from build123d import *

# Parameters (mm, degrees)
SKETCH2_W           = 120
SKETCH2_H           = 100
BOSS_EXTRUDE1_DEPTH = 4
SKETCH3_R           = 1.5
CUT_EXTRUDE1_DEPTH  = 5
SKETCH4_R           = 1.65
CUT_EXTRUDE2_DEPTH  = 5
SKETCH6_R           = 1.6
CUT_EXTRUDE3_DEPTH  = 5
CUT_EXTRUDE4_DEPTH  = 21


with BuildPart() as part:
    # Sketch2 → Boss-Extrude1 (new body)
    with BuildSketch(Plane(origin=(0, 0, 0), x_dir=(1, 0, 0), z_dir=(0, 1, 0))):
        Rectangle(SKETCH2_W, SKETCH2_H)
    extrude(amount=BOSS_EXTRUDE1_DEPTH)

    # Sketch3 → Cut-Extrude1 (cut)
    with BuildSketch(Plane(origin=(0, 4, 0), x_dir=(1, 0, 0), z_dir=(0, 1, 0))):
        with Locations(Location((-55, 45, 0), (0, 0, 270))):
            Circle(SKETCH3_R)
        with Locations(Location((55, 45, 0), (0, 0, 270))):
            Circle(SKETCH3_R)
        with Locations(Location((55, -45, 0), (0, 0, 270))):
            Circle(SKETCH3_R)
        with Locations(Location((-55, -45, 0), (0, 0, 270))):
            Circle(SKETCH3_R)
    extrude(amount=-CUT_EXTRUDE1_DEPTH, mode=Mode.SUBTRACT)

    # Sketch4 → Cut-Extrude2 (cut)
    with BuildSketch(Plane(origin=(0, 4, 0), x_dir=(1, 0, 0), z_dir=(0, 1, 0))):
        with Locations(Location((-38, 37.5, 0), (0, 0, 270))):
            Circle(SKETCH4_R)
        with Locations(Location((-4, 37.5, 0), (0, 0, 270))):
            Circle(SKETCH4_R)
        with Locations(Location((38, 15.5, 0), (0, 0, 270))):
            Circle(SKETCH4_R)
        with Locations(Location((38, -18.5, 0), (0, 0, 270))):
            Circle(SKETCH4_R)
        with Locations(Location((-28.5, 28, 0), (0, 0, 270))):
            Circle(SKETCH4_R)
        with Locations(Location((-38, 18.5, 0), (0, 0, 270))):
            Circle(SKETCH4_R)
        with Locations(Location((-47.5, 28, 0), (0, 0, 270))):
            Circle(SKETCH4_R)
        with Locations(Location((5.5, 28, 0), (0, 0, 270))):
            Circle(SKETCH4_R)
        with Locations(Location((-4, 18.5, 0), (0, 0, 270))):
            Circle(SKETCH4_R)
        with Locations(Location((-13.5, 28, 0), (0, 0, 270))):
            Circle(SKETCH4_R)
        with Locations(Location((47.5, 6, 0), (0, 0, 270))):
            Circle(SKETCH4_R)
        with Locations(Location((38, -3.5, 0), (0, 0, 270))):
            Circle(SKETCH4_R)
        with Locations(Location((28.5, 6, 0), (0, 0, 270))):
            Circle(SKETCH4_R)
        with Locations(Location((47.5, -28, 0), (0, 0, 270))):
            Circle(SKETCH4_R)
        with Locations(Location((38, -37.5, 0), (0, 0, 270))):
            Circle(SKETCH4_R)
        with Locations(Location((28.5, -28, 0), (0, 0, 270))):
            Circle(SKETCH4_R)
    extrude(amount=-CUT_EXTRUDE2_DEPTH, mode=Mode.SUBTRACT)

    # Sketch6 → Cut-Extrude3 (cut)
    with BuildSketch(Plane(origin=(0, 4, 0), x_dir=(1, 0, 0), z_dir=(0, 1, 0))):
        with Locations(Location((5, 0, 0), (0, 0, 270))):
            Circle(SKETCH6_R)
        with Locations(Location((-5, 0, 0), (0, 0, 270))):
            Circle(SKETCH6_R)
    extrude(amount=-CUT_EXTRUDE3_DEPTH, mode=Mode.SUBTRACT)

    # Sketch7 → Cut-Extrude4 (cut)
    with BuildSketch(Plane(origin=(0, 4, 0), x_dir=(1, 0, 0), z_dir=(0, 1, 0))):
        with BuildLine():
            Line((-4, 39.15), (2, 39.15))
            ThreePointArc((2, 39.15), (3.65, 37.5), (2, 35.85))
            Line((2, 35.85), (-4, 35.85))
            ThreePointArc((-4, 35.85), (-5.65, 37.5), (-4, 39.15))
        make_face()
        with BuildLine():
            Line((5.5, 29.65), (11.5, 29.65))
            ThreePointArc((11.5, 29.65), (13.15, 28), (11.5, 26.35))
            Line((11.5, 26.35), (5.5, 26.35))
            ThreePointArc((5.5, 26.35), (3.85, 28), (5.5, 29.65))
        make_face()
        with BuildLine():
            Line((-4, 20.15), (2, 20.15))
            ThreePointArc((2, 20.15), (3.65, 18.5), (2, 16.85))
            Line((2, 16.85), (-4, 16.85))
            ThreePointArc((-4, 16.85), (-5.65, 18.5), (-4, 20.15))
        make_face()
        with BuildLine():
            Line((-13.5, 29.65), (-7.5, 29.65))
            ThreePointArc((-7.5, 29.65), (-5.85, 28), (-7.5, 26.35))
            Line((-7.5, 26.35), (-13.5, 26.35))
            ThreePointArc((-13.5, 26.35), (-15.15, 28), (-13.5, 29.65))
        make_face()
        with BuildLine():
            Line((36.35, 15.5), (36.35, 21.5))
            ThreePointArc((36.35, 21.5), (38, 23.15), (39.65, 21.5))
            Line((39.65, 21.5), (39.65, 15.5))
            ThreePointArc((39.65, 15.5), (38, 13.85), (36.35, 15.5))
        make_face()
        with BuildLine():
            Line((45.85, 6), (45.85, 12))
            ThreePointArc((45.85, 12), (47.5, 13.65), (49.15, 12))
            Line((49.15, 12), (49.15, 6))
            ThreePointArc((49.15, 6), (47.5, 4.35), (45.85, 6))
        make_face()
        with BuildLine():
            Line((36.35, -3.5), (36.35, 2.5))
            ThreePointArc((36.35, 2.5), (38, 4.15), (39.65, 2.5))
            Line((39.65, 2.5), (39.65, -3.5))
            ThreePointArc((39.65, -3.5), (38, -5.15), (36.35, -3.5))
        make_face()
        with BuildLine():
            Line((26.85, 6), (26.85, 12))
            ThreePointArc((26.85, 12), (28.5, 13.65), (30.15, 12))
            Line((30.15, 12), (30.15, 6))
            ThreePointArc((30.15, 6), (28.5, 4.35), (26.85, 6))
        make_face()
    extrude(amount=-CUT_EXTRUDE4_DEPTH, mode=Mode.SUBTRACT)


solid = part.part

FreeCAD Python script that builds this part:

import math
import FreeCAD as App
import Part
import Sketcher
Q = App.Units.Quantity

doc = App.newDocument("Part")
params = doc.addObject("Spreadsheet::Sheet", "Params")
for row, (alias, value) in enumerate([
    ("sketch1_width", "120 mm"),
    ("sketch1_height", "100 mm"),
    ("pad1_length", "4 mm"),
    ("sketch2_diameter", "3 mm"),
    ("pocket1_length", "5 mm"),
    ("sketch3_diameter", "3.3 mm"),
    ("pocket2_length", "5 mm"),
    ("sketch4_diameter", "3.2 mm"),
    ("pocket3_length", "5 mm"),
    ("sketch5_width", "6 mm"),
    ("sketch5_radius", "1.65 mm"),
    ("pocket4_length", "21 mm"),
], start=1):
    params.set(f"A{row}", alias)
    params.set(f"B{row}", "=" + value)
    params.setAlias(f"B{row}", alias)

body = doc.addObject("PartDesign::Body", "Body")

# Sketch on XZ plane
sketch1 = doc.addObject("Sketcher::SketchObject", "Sketch")
body.addObject(sketch1)
sketch1.AttachmentSupport = (doc.XZ_Plane, [""])
sketch1.MapMode = "FlatFace"
sketch1.addGeometry(Part.LineSegment(App.Vector(-60, -50, 0), App.Vector(-60, 50, 0)), False)
sketch1.addGeometry(Part.LineSegment(App.Vector(-60, 50, 0), App.Vector(60, 50, 0)), False)
sketch1.addGeometry(Part.LineSegment(App.Vector(60, 50, 0), App.Vector(60, -50, 0)), False)
sketch1.addGeometry(Part.LineSegment(App.Vector(60, -50, 0), App.Vector(-60, -50, 0)), False)
sketch1.addConstraint(Sketcher.Constraint("Coincident", 0, 2, 1, 1))
sketch1.addConstraint(Sketcher.Constraint("Coincident", 1, 2, 2, 1))
sketch1.addConstraint(Sketcher.Constraint("Coincident", 2, 2, 3, 1))
sketch1.addConstraint(Sketcher.Constraint("Coincident", 3, 2, 0, 1))
sketch1.addConstraint(Sketcher.Constraint("Vertical", 0))
sketch1.addConstraint(Sketcher.Constraint("Horizontal", 1))
sketch1.addConstraint(Sketcher.Constraint("Vertical", 2))
sketch1.addConstraint(Sketcher.Constraint("Horizontal", 3))
sketch1.addConstraint(Sketcher.Constraint("Symmetric", 0, 2, 2, 2, -1, 1))
sketch1.addConstraint(Sketcher.Constraint("DistanceX", 1, 1, 1, 2, Q("120 mm")))
sketch1.addConstraint(Sketcher.Constraint("DistanceY", 0, 1, 0, 2, Q("100 mm")))
sketch1.setExpression("Constraints[9]", "Params.sketch1_width")
sketch1.setExpression("Constraints[10]", "Params.sketch1_height")
pad1 = doc.addObject("PartDesign::Pad", "Pad")
body.addObject(pad1)
pad1.Profile = sketch1
pad1.setExpression("Length", "Params.pad1_length")
pad1.Reversed = True

# Sketch on XZ plane
sketch2 = doc.addObject("Sketcher::SketchObject", "Sketch001")
body.addObject(sketch2)
sketch2.AttachmentSupport = (doc.XZ_Plane, [""])
sketch2.MapMode = "FlatFace"
sketch2.AttachmentOffset = App.Placement(App.Vector(0, 0, -4), App.Rotation())
sketch2.addGeometry(Part.Circle(App.Vector(-55, -45, 0), App.Vector(0, 0, 1), 1.5), False)
sketch2.addGeometry(Part.Circle(App.Vector(55, -45, 0), App.Vector(0, 0, 1), 1.5), False)
sketch2.addGeometry(Part.Circle(App.Vector(55, 45, 0), App.Vector(0, 0, 1), 1.5), False)
sketch2.addGeometry(Part.Circle(App.Vector(-55, 45, 0), App.Vector(0, 0, 1), 1.5), False)
sketch2.addConstraint(Sketcher.Constraint("Equal", 0, 1))
sketch2.addConstraint(Sketcher.Constraint("Equal", 1, 2))
sketch2.addConstraint(Sketcher.Constraint("Equal", 2, 3))
sketch2.addConstraint(Sketcher.Constraint("Symmetric", 0, 3, 2, 3, -1, 1))
sketch2.addConstraint(Sketcher.Constraint("Symmetric", 1, 3, 3, 3, -1, 1))
sketch2.addConstraint(Sketcher.Constraint("Symmetric", 0, 3, 1, 3, -2))
sketch2.addConstraint(Sketcher.Constraint("Diameter", 0, Q("3 mm")))
sketch2.addConstraint(Sketcher.Constraint("DistanceX", 0, 3, -1, 1, Q("55 mm")))
sketch2.addConstraint(Sketcher.Constraint("DistanceY", 0, 3, -1, 1, Q("45 mm")))
sketch2.setExpression("Constraints[6]", "Params.sketch2_diameter")
pocket1 = doc.addObject("PartDesign::Pocket", "Pocket")
body.addObject(pocket1)
pocket1.Profile = sketch2
pocket1.setExpression("Length", "Params.pocket1_length")
pocket1.Reversed = True

# Sketch on XZ plane
sketch3 = doc.addObject("Sketcher::SketchObject", "Sketch002")
body.addObject(sketch3)
sketch3.AttachmentSupport = (doc.XZ_Plane, [""])
sketch3.MapMode = "FlatFace"
sketch3.AttachmentOffset = App.Placement(App.Vector(0, 0, -4), App.Rotation())
sketch3.addGeometry(Part.Circle(App.Vector(-38, -37.5, 0), App.Vector(0, 0, 1), 1.65), False)
sketch3.addGeometry(Part.Circle(App.Vector(-4, -37.5, 0), App.Vector(0, 0, 1), 1.65), False)
sketch3.addGeometry(Part.Circle(App.Vector(38, -15.5, 0), App.Vector(0, 0, 1), 1.65), False)
sketch3.addGeometry(Part.Circle(App.Vector(38, 18.5, 0), App.Vector(0, 0, 1), 1.65), False)
sketch3.addGeometry(Part.Circle(App.Vector(-28.5, -28, 0), App.Vector(0, 0, 1), 1.65), False)
sketch3.addGeometry(Part.Circle(App.Vector(-38, -18.5, 0), App.Vector(0, 0, 1), 1.65), False)
sketch3.addGeometry(Part.Circle(App.Vector(-47.5, -28, 0), App.Vector(0, 0, 1), 1.65), False)
sketch3.addGeometry(Part.Circle(App.Vector(5.5, -28, 0), App.Vector(0, 0, 1), 1.65), False)
sketch3.addGeometry(Part.Circle(App.Vector(-4, -18.5, 0), App.Vector(0, 0, 1), 1.65), False)
sketch3.addGeometry(Part.Circle(App.Vector(-13.5, -28, 0), App.Vector(0, 0, 1), 1.65), False)
sketch3.addGeometry(Part.Circle(App.Vector(47.5, -6, 0), App.Vector(0, 0, 1), 1.65), False)
sketch3.addGeometry(Part.Circle(App.Vector(38, 3.5, 0), App.Vector(0, 0, 1), 1.65), False)
sketch3.addGeometry(Part.Circle(App.Vector(28.5, -6, 0), App.Vector(0, 0, 1), 1.65), False)
sketch3.addGeometry(Part.Circle(App.Vector(47.5, 28, 0), App.Vector(0, 0, 1), 1.65), False)
sketch3.addGeometry(Part.Circle(App.Vector(38, 37.5, 0), App.Vector(0, 0, 1), 1.65), False)
sketch3.addGeometry(Part.Circle(App.Vector(28.5, 28, 0), App.Vector(0, 0, 1), 1.65), False)
sketch3.addConstraint(Sketcher.Constraint("Equal", 0, 1))
sketch3.addConstraint(Sketcher.Constraint("Equal", 1, 2))
sketch3.addConstraint(Sketcher.Constraint("Equal", 2, 3))
sketch3.addConstraint(Sketcher.Constraint("Equal", 3, 4))
sketch3.addConstraint(Sketcher.Constraint("Equal", 4, 5))
sketch3.addConstraint(Sketcher.Constraint("Equal", 5, 6))
sketch3.addConstraint(Sketcher.Constraint("Equal", 6, 7))
sketch3.addConstraint(Sketcher.Constraint("Equal", 7, 8))
sketch3.addConstraint(Sketcher.Constraint("Equal", 8, 9))
sketch3.addConstraint(Sketcher.Constraint("Equal", 9, 10))
sketch3.addConstraint(Sketcher.Constraint("Equal", 10, 11))
sketch3.addConstraint(Sketcher.Constraint("Equal", 11, 12))
sketch3.addConstraint(Sketcher.Constraint("Equal", 12, 13))
sketch3.addConstraint(Sketcher.Constraint("Equal", 13, 14))
sketch3.addConstraint(Sketcher.Constraint("Equal", 14, 15))
sketch3.addConstraint(Sketcher.Constraint("Symmetric", 3, 3, 5, 3, -1, 1))
sketch3.addConstraint(Sketcher.Constraint("Symmetric", 6, 3, 13, 3, -1, 1))
sketch3.addConstraint(Sketcher.Constraint("Symmetric", 0, 3, 14, 3, -1, 1))
sketch3.addConstraint(Sketcher.Constraint("Symmetric", 4, 3, 15, 3, -1, 1))
sketch3.addConstraint(Sketcher.Constraint("Horizontal", 0, 3, 1, 3))
sketch3.addConstraint(Sketcher.Constraint("Horizontal", 4, 3, 6, 3))
sketch3.addConstraint(Sketcher.Constraint("Horizontal", 6, 3, 7, 3))
sketch3.addConstraint(Sketcher.Constraint("Horizontal", 5, 3, 8, 3))
sketch3.addConstraint(Sketcher.Constraint("Horizontal", 7, 3, 9, 3))
sketch3.addConstraint(Sketcher.Constraint("Horizontal", 10, 3, 12, 3))
sketch3.addConstraint(Sketcher.Constraint("Vertical", 2, 3, 3, 3))
sketch3.addConstraint(Sketcher.Constraint("Vertical", 0, 3, 5, 3))
sketch3.addConstraint(Sketcher.Constraint("Vertical", 1, 3, 8, 3))
sketch3.addConstraint(Sketcher.Constraint("Vertical", 3, 3, 11, 3))
sketch3.addConstraint(Sketcher.Constraint("Vertical", 10, 3, 13, 3))
sketch3.addConstraint(Sketcher.Constraint("Vertical", 12, 3, 15, 3))
sketch3.addConstraint(Sketcher.Constraint("Diameter", 0, Q("3.3 mm")))
sketch3.addConstraint(Sketcher.Constraint("DistanceX", 0, 3, -1, 1, Q("38 mm")))
sketch3.addConstraint(Sketcher.Constraint("DistanceX", 1, 3, -1, 1, Q("4 mm")))
sketch3.addConstraint(Sketcher.Constraint("DistanceY", 4, 3, -1, 1, Q("28 mm")))
sketch3.addConstraint(Sketcher.Constraint("DistanceY", 10, 3, -1, 1, Q("6 mm")))
sketch3.addConstraint(Sketcher.Constraint("DistanceY", 1, 3, 2, 3, Q("22 mm")))
sketch3.addConstraint(Sketcher.Constraint("DistanceY", 2, 3, 3, 3, Q("34 mm")))
sketch3.addConstraint(Sketcher.Constraint("DistanceY", 0, 3, 5, 3, Q("19 mm")))
sketch3.addConstraint(Sketcher.Constraint("DistanceX", 6, 3, 4, 3, Q("19 mm")))
sketch3.addConstraint(Sketcher.Constraint("DistanceX", 4, 3, 7, 3, Q("34 mm")))
sketch3.addConstraint(Sketcher.Constraint("DistanceX", 4, 3, 9, 3, Q("15 mm")))
sketch3.addConstraint(Sketcher.Constraint("DistanceX", 7, 3, 10, 3, Q("42 mm")))
sketch3.addConstraint(Sketcher.Constraint("DistanceY", 11, 3, 3, 3, Q("15 mm")))
sketch3.setExpression("Constraints[31]", "Params.sketch3_diameter")
pocket2 = doc.addObject("PartDesign::Pocket", "Pocket001")
body.addObject(pocket2)
pocket2.Profile = sketch3
pocket2.setExpression("Length", "Params.pocket2_length")
pocket2.Reversed = True

# Sketch on XZ plane
sketch4 = doc.addObject("Sketcher::SketchObject", "Sketch003")
body.addObject(sketch4)
sketch4.AttachmentSupport = (doc.XZ_Plane, [""])
sketch4.MapMode = "FlatFace"
sketch4.AttachmentOffset = App.Placement(App.Vector(0, 0, -4), App.Rotation())
sketch4.addGeometry(Part.Circle(App.Vector(5, 0, 0), App.Vector(0, 0, 1), 1.6), False)
sketch4.addGeometry(Part.Circle(App.Vector(-5, 0, 0), App.Vector(0, 0, 1), 1.6), False)
sketch4.addConstraint(Sketcher.Constraint("Equal", 0, 1))
sketch4.addConstraint(Sketcher.Constraint("Symmetric", 0, 3, 1, 3, -1, 1))
sketch4.addConstraint(Sketcher.Constraint("PointOnObject", 0, 3, -1))
sketch4.addConstraint(Sketcher.Constraint("Diameter", 0, Q("3.2 mm")))
sketch4.addConstraint(Sketcher.Constraint("DistanceX", -1, 1, 0, 3, Q("5 mm")))
sketch4.setExpression("Constraints[3]", "Params.sketch4_diameter")
pocket3 = doc.addObject("PartDesign::Pocket", "Pocket002")
body.addObject(pocket3)
pocket3.Profile = sketch4
pocket3.setExpression("Length", "Params.pocket3_length")
pocket3.Reversed = True

# Sketch on XZ plane
sketch5 = doc.addObject("Sketcher::SketchObject", "Sketch004")
body.addObject(sketch5)
sketch5.AttachmentSupport = (doc.XZ_Plane, [""])
sketch5.MapMode = "FlatFace"
sketch5.AttachmentOffset = App.Placement(App.Vector(0, 0, -4), App.Rotation())
sketch5.addGeometry(Part.LineSegment(App.Vector(2, -39.15, 0), App.Vector(-4, -39.15, 0)), False)
sketch5.addGeometry(Part.ArcOfCircle(Part.Circle(App.Vector(-4, -37.5, 0), App.Vector(0, 0, 1), 1.65), math.radians(90), math.radians(270)), False)
sketch5.addGeometry(Part.LineSegment(App.Vector(-4, -35.85, 0), App.Vector(2, -35.85, 0)), False)
sketch5.addGeometry(Part.ArcOfCircle(Part.Circle(App.Vector(2, -37.5, 0), App.Vector(0, 0, 1), 1.65), math.radians(-90), math.radians(90)), False)
sketch5.addGeometry(Part.LineSegment(App.Vector(11.5, -29.65, 0), App.Vector(5.5, -29.65, 0)), False)
sketch5.addGeometry(Part.ArcOfCircle(Part.Circle(App.Vector(5.5, -28, 0), App.Vector(0, 0, 1), 1.65), math.radians(90), math.radians(270)), False)
sketch5.addGeometry(Part.LineSegment(App.Vector(5.5, -26.35, 0), App.Vector(11.5, -26.35, 0)), False)
sketch5.addGeometry(Part.ArcOfCircle(Part.Circle(App.Vector(11.5, -28, 0), App.Vector(0, 0, 1), 1.65), math.radians(-90), math.radians(90)), False)
sketch5.addGeometry(Part.LineSegment(App.Vector(2, -20.15, 0), App.Vector(-4, -20.15, 0)), False)
sketch5.addGeometry(Part.ArcOfCircle(Part.Circle(App.Vector(-4, -18.5, 0), App.Vector(0, 0, 1), 1.65), math.radians(90), math.radians(270)), False)
sketch5.addGeometry(Part.LineSegment(App.Vector(-4, -16.85, 0), App.Vector(2, -16.85, 0)), False)
sketch5.addGeometry(Part.ArcOfCircle(Part.Circle(App.Vector(2, -18.5, 0), App.Vector(0, 0, 1), 1.65), math.radians(-90), math.radians(90)), False)
sketch5.addGeometry(Part.LineSegment(App.Vector(-7.5, -29.65, 0), App.Vector(-13.5, -29.65, 0)), False)
sketch5.addGeometry(Part.ArcOfCircle(Part.Circle(App.Vector(-13.5, -28, 0), App.Vector(0, 0, 1), 1.65), math.radians(90), math.radians(270)), False)
sketch5.addGeometry(Part.LineSegment(App.Vector(-13.5, -26.35, 0), App.Vector(-7.5, -26.35, 0)), False)
sketch5.addGeometry(Part.ArcOfCircle(Part.Circle(App.Vector(-7.5, -28, 0), App.Vector(0, 0, 1), 1.65), math.radians(-90), math.radians(90)), False)
sketch5.addGeometry(Part.LineSegment(App.Vector(36.35, -21.5, 0), App.Vector(36.35, -15.5, 0)), False)
sketch5.addGeometry(Part.ArcOfCircle(Part.Circle(App.Vector(38, -15.5, 0), App.Vector(0, 0, 1), 1.65), math.radians(0), math.radians(180)), False)
sketch5.addGeometry(Part.LineSegment(App.Vector(39.65, -15.5, 0), App.Vector(39.65, -21.5, 0)), False)
sketch5.addGeometry(Part.ArcOfCircle(Part.Circle(App.Vector(38, -21.5, 0), App.Vector(0, 0, 1), 1.65), math.radians(180), math.radians(360)), False)
sketch5.addGeometry(Part.LineSegment(App.Vector(45.85, -12, 0), App.Vector(45.85, -6, 0)), False)
sketch5.addGeometry(Part.ArcOfCircle(Part.Circle(App.Vector(47.5, -6, 0), App.Vector(0, 0, 1), 1.65), math.radians(0), math.radians(180)), False)
sketch5.addGeometry(Part.LineSegment(App.Vector(49.15, -6, 0), App.Vector(49.15, -12, 0)), False)
sketch5.addGeometry(Part.ArcOfCircle(Part.Circle(App.Vector(47.5, -12, 0), App.Vector(0, 0, 1), 1.65), math.radians(180), math.radians(360)), False)
sketch5.addGeometry(Part.LineSegment(App.Vector(36.35, -2.5, 0), App.Vector(36.35, 3.5, 0)), False)
sketch5.addGeometry(Part.ArcOfCircle(Part.Circle(App.Vector(38, 3.5, 0), App.Vector(0, 0, 1), 1.65), math.radians(0), math.radians(180)), False)
sketch5.addGeometry(Part.LineSegment(App.Vector(39.65, 3.5, 0), App.Vector(39.65, -2.5, 0)), False)
sketch5.addGeometry(Part.ArcOfCircle(Part.Circle(App.Vector(38, -2.5, 0), App.Vector(0, 0, 1), 1.65), math.radians(180), math.radians(360)), False)
sketch5.addGeometry(Part.LineSegment(App.Vector(26.85, -12, 0), App.Vector(26.85, -6, 0)), False)
sketch5.addGeometry(Part.ArcOfCircle(Part.Circle(App.Vector(28.5, -6, 0), App.Vector(0, 0, 1), 1.65), math.radians(0), math.radians(180)), False)
sketch5.addGeometry(Part.LineSegment(App.Vector(30.15, -6, 0), App.Vector(30.15, -12, 0)), False)
sketch5.addGeometry(Part.ArcOfCircle(Part.Circle(App.Vector(28.5, -12, 0), App.Vector(0, 0, 1), 1.65), math.radians(180), math.radians(360)), False)
sketch5.addConstraint(Sketcher.Constraint("Tangent", 0, 2, 1, 2))
sketch5.addConstraint(Sketcher.Constraint("Tangent", 1, 1, 2, 1))
sketch5.addConstraint(Sketcher.Constraint("Tangent", 2, 2, 3, 2))
sketch5.addConstraint(Sketcher.Constraint("Tangent", 3, 1, 0, 1))
sketch5.addConstraint(Sketcher.Constraint("Tangent", 4, 2, 5, 2))
sketch5.addConstraint(Sketcher.Constraint("Tangent", 5, 1, 6, 1))
sketch5.addConstraint(Sketcher.Constraint("Tangent", 6, 2, 7, 2))
sketch5.addConstraint(Sketcher.Constraint("Tangent", 7, 1, 4, 1))
sketch5.addConstraint(Sketcher.Constraint("Tangent", 8, 2, 9, 2))
sketch5.addConstraint(Sketcher.Constraint("Tangent", 9, 1, 10, 1))
sketch5.addConstraint(Sketcher.Constraint("Tangent", 10, 2, 11, 2))
sketch5.addConstraint(Sketcher.Constraint("Tangent", 11, 1, 8, 1))
sketch5.addConstraint(Sketcher.Constraint("Tangent", 12, 2, 13, 2))
sketch5.addConstraint(Sketcher.Constraint("Tangent", 13, 1, 14, 1))
sketch5.addConstraint(Sketcher.Constraint("Tangent", 14, 2, 15, 2))
sketch5.addConstraint(Sketcher.Constraint("Tangent", 15, 1, 12, 1))
sketch5.addConstraint(Sketcher.Constraint("Tangent", 16, 2, 17, 2))
sketch5.addConstraint(Sketcher.Constraint("Tangent", 17, 1, 18, 1))
sketch5.addConstraint(Sketcher.Constraint("Tangent", 18, 2, 19, 2))
sketch5.addConstraint(Sketcher.Constraint("Tangent", 19, 1, 16, 1))
sketch5.addConstraint(Sketcher.Constraint("Tangent", 20, 2, 21, 2))
sketch5.addConstraint(Sketcher.Constraint("Tangent", 21, 1, 22, 1))
sketch5.addConstraint(Sketcher.Constraint("Tangent", 22, 2, 23, 2))
sketch5.addConstraint(Sketcher.Constraint("Tangent", 23, 1, 20, 1))
sketch5.addConstraint(Sketcher.Constraint("Tangent", 24, 2, 25, 2))
sketch5.addConstraint(Sketcher.Constraint("Tangent", 25, 1, 26, 1))
sketch5.addConstraint(Sketcher.Constraint("Tangent", 26, 2, 27, 2))
sketch5.addConstraint(Sketcher.Constraint("Tangent", 27, 1, 24, 1))
sketch5.addConstraint(Sketcher.Constraint("Tangent", 28, 2, 29, 2))
sketch5.addConstraint(Sketcher.Constraint("Tangent", 29, 1, 30, 1))
sketch5.addConstraint(Sketcher.Constraint("Tangent", 30, 2, 31, 2))
sketch5.addConstraint(Sketcher.Constraint("Tangent", 31, 1, 28, 1))
sketch5.addConstraint(Sketcher.Constraint("Horizontal", 0))
sketch5.addConstraint(Sketcher.Constraint("Horizontal", 2))
sketch5.addConstraint(Sketcher.Constraint("Horizontal", 4))
sketch5.addConstraint(Sketcher.Constraint("Horizontal", 6))
sketch5.addConstraint(Sketcher.Constraint("Horizontal", 8))
sketch5.addConstraint(Sketcher.Constraint("Horizontal", 10))
sketch5.addConstraint(Sketcher.Constraint("Horizontal", 12))
sketch5.addConstraint(Sketcher.Constraint("Horizontal", 14))
sketch5.addConstraint(Sketcher.Constraint("Vertical", 16))
sketch5.addConstraint(Sketcher.Constraint("Vertical", 18))
sketch5.addConstraint(Sketcher.Constraint("Vertical", 20))
sketch5.addConstraint(Sketcher.Constraint("Vertical", 22))
sketch5.addConstraint(Sketcher.Constraint("Vertical", 24))
sketch5.addConstraint(Sketcher.Constraint("Vertical", 26))
sketch5.addConstraint(Sketcher.Constraint("Vertical", 28))
sketch5.addConstraint(Sketcher.Constraint("Vertical", 30))
sketch5.addConstraint(Sketcher.Constraint("Equal", 3, 5))
sketch5.addConstraint(Sketcher.Constraint("Equal", 7, 9))
sketch5.addConstraint(Sketcher.Constraint("Equal", 11, 13))
sketch5.addConstraint(Sketcher.Constraint("Equal", 15, 17))
sketch5.addConstraint(Sketcher.Constraint("Equal", 19, 21))
sketch5.addConstraint(Sketcher.Constraint("Equal", 23, 25))
sketch5.addConstraint(Sketcher.Constraint("Equal", 27, 29))
sketch5.addConstraint(Sketcher.Constraint("Horizontal", 7, 3, 13, 3))
sketch5.addConstraint(Sketcher.Constraint("Horizontal", 21, 3, 29, 3))
sketch5.addConstraint(Sketcher.Constraint("Horizontal", 23, 3, 31, 3))
sketch5.addConstraint(Sketcher.Constraint("Vertical", 1, 3, 9, 3))
sketch5.addConstraint(Sketcher.Constraint("Vertical", 3, 3, 11, 3))
sketch5.addConstraint(Sketcher.Constraint("Vertical", 19, 3, 25, 3))
sketch5.addConstraint(Sketcher.Constraint("Equal", 2, 4))
sketch5.addConstraint(Sketcher.Constraint("Equal", 10, 12))
sketch5.addConstraint(Sketcher.Constraint("Equal", 14, 16))
sketch5.addConstraint(Sketcher.Constraint("Equal", 18, 20))
sketch5.addConstraint(Sketcher.Constraint("Equal", 22, 24))
sketch5.addConstraint(Sketcher.Constraint("DistanceX", 0, 2, 0, 1, Q("6 mm")))
sketch5.addConstraint(Sketcher.Constraint("Radius", 1, Q("1.65 mm")))
sketch5.addConstraint(Sketcher.Constraint("DistanceX", 1, 3, -1, 1, Q("4 mm")))
sketch5.addConstraint(Sketcher.Constraint("DistanceY", 5, 3, -1, 1, Q("28 mm")))
sketch5.addConstraint(Sketcher.Constraint("DistanceX", -1, 1, 17, 3, Q("38 mm")))
sketch5.addConstraint(Sketcher.Constraint("DistanceY", 21, 3, -1, 1, Q("6 mm")))
sketch5.addConstraint(Sketcher.Constraint("DistanceY", 1, 3, 9, 3, Q("19 mm")))
sketch5.addConstraint(Sketcher.Constraint("DistanceX", 13, 3, 5, 3, Q("19 mm")))
sketch5.addConstraint(Sketcher.Constraint("DistanceY", 11, 3, 17, 3, Q("3 mm")))
sketch5.addConstraint(Sketcher.Constraint("DistanceX", 7, 3, 21, 3, Q("36 mm")))
sketch5.addConstraint(Sketcher.Constraint("DistanceY", 17, 3, 25, 3, Q("19 mm")))
sketch5.addConstraint(Sketcher.Constraint("DistanceX", 29, 3, 21, 3, Q("19 mm")))
sketch5.addConstraint(Sketcher.Constraint("DistanceY", 1, 3, -1, 1, Q("37.5 mm")))
sketch5.addConstraint(Sketcher.Constraint("DistanceX", -1, 1, 5, 3, Q("5.5 mm")))
sketch5.setExpression("Constraints[66]", "Params.sketch5_width")
sketch5.setExpression("Constraints[67]", "Params.sketch5_radius")
pocket4 = doc.addObject("PartDesign::Pocket", "Pocket003")
body.addObject(pocket4)
pocket4.Profile = sketch5
pocket4.setExpression("Length", "Params.pocket4_length")
pocket4.Reversed = True

doc.recompute()
